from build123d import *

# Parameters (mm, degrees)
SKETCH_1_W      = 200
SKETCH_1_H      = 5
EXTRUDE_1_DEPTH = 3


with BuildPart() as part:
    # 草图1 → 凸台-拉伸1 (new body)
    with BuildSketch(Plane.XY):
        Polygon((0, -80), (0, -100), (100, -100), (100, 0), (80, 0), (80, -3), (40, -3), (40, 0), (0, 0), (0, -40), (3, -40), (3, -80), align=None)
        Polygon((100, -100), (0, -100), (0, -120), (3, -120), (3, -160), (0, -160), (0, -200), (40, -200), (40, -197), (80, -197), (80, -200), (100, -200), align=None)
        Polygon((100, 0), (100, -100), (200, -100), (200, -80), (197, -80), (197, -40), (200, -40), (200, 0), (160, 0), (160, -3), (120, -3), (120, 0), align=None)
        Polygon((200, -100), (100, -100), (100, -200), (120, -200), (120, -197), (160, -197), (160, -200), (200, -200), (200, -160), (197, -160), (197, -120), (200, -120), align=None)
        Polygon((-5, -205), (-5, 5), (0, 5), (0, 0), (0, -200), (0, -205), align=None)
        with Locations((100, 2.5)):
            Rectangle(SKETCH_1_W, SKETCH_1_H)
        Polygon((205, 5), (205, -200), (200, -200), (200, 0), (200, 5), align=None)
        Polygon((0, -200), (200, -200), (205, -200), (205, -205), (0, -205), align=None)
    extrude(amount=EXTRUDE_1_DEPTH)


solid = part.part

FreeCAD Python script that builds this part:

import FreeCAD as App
import Part
import Sketcher

V = App.Vector
Q = App.Units.Quantity


def add_polygon(sketch, points):
    """Adds a closed chain of lines whose ends are joined by coincident constraints."""
    first, n = sketch.GeometryCount, len(points)
    for a, b in zip(points, points[1:] + points[:1]):
        sketch.addGeometry(Part.LineSegment(App.Vector(*a, 0), App.Vector(*b, 0)), False)
    for i in range(n):
        sketch.addConstraint(Sketcher.Constraint("Coincident", first + i, 2, first + (i + 1) % n, 1))

doc = App.newDocument("Part")
body = doc.addObject("PartDesign::Body", "Body")

sketch1 = body.newObject("Sketcher::SketchObject", "Sketch")
sketch1.AttachmentSupport = (doc.getObject("XY_Plane"), [""])
sketch1.MapMode = "FlatFace"
add_polygon(sketch1, [(205, 5), (-5, 5), (-5, -205), (205, -205)])
add_polygon(sketch1, [(0, -120), (3, -120), (3, -160), (0, -160)])
add_polygon(sketch1, [(40, -200), (40, -197), (80, -197), (80, -200)])
add_polygon(sketch1, [(120, -200), (120, -197), (160, -197), (160, -200)])
add_polygon(sketch1, [(200, -160), (197, -160), (197, -120), (200, -120)])
add_polygon(sketch1, [(200, -80), (197, -80), (197, -40), (200, -40)])
add_polygon(sketch1, [(160, 0), (160, -3), (120, -3), (120, 0)])
add_polygon(sketch1, [(80, 0), (80, -3), (40, -3), (40, 0)])
add_polygon(sketch1, [(0, -40), (3, -40), (3, -80), (0, -80)])
sketch1.addConstraint([
    Sketcher.Constraint("Horizontal", 0),
    Sketcher.Constraint("Vertical", 1),
    Sketcher.Constraint("Horizontal", 2),
    Sketcher.Constraint("Vertical", 3),
    Sketcher.Constraint("Horizontal", 4),
    Sketcher.Constraint("Vertical", 5),
    Sketcher.Constraint("Horizontal", 6),
    Sketcher.Constraint("Vertical", 7),
    Sketcher.Constraint("Vertical", 8),
    Sketcher.Constraint("Horizontal", 9),
    Sketcher.Constraint("Vertical", 10),
    Sketcher.Constraint("Horizontal", 11),
    Sketcher.Constraint("Vertical", 12),
    Sketcher.Constraint("Horizontal", 13),
    Sketcher.Constraint("Vertical", 14),
    Sketcher.Constraint("Horizontal", 15),
    Sketcher.Constraint("Horizontal", 16),
    Sketcher.Constraint("Vertical", 17),
    Sketcher.Constraint("Horizontal", 18),
    Sketcher.Constraint("Vertical", 19),
    Sketcher.Constraint("Horizontal", 20),
    Sketcher.Constraint("Vertical", 21),
    Sketcher.Constraint("Horizontal", 22),
    Sketcher.Constraint("Vertical", 23),
    Sketcher.Constraint("Vertical", 24),
    Sketcher.Constraint("Horizontal", 25),
    Sketcher.Constraint("Vertical", 26),
    Sketcher.Constraint("Horizontal", 27),
    Sketcher.Constraint("Vertical", 28),
    Sketcher.Constraint("Horizontal", 29),
    Sketcher.Constraint("Vertical", 30),
    Sketcher.Constraint("Horizontal", 31),
    Sketcher.Constraint("Horizontal", 32),
    Sketcher.Constraint("Vertical", 33),
    Sketcher.Constraint("Horizontal", 34),
    Sketcher.Constraint("Vertical", 35),
    Sketcher.Constraint("PointOnObject", 6, 2, -2),
    Sketcher.Constraint("PointOnObject", 26, 2, -1),
    Sketcher.Constraint("PointOnObject", 30, 2, -1),
    Sketcher.Constraint("PointOnObject", 34, 2, -2),
    Sketcher.Constraint("Horizontal", 9, 2, 12, 2),
    Sketcher.Constraint("Horizontal", 11, 2, 14, 2),
    Sketcher.Constraint("Horizontal", 6, 2, 16, 2),
    Sketcher.Constraint("Horizontal", 7, 2, 17, 2),
    Sketcher.Constraint("Horizontal", 25, 2, 28, 2),
    Sketcher.Constraint("Horizontal", 22, 2, 32, 2),
    Sketcher.Constraint("Horizontal", 23, 2, 33, 2),
    Sketcher.Constraint("Vertical", 17, 2, 20, 2),
    Sketcher.Constraint("Vertical", 19, 2, 22, 2),
    Sketcher.Constraint("Vertical", 14, 2, 24, 2),
    Sketcher.Constraint("Vertical", 15, 2, 25, 2),
    Sketcher.Constraint("Vertical", 10, 2, 28, 2),
    Sketcher.Constraint("Vertical", 11, 2, 29, 2),
    Sketcher.Constraint("Vertical", 5, 2, 32, 2),
    Sketcher.Constraint("Equal", 11, 13),
    Sketcher.Constraint("Equal", 6, 16),
    Sketcher.Constraint("Equal", 2, 1),
    Sketcher.Constraint("Equal", 31, 5),
    Sketcher.Constraint("Equal", 34, 8),
    Sketcher.Constraint("Equal", 19, 21),
    Sketcher.Constraint("Equal", 14, 24),
    Sketcher.Constraint("DistanceX", 0, 2, 0, 1, Q("210 mm")),
    Sketcher.Constraint("DistanceX", 4, 1, 4, 2, Q("3 mm")),
    Sketcher.Constraint("DistanceX", 9, 1, 9, 2, Q("40 mm")),
    Sketcher.Constraint("DistanceX", 0, 2, -1, 1, Q("5 mm")),
    Sketcher.Constraint("DistanceY", -1, 1, 0, 2, Q("5 mm")),
    Sketcher.Constraint("DistanceY", 4, 2, -1, 1, Q("120 mm")),
    Sketcher.Constraint("DistanceX", -1, 1, 8, 2, Q("40 mm")),
    Sketcher.Constraint("DistanceY", 8, 2, -1, 1, Q("197 mm")),
    Sketcher.Constraint("DistanceX", -1, 1, 12, 2, Q("120 mm")),
    Sketcher.Constraint("DistanceX", -1, 1, 16, 2, Q("197 mm")),
    Sketcher.Constraint("DistanceY", 20, 2, -1, 1, Q("80 mm")),
])
pad1 = body.newObject("PartDesign::Pad", "Pad")
pad1.Profile = sketch1
pad1.Length = 3

doc.recompute()
